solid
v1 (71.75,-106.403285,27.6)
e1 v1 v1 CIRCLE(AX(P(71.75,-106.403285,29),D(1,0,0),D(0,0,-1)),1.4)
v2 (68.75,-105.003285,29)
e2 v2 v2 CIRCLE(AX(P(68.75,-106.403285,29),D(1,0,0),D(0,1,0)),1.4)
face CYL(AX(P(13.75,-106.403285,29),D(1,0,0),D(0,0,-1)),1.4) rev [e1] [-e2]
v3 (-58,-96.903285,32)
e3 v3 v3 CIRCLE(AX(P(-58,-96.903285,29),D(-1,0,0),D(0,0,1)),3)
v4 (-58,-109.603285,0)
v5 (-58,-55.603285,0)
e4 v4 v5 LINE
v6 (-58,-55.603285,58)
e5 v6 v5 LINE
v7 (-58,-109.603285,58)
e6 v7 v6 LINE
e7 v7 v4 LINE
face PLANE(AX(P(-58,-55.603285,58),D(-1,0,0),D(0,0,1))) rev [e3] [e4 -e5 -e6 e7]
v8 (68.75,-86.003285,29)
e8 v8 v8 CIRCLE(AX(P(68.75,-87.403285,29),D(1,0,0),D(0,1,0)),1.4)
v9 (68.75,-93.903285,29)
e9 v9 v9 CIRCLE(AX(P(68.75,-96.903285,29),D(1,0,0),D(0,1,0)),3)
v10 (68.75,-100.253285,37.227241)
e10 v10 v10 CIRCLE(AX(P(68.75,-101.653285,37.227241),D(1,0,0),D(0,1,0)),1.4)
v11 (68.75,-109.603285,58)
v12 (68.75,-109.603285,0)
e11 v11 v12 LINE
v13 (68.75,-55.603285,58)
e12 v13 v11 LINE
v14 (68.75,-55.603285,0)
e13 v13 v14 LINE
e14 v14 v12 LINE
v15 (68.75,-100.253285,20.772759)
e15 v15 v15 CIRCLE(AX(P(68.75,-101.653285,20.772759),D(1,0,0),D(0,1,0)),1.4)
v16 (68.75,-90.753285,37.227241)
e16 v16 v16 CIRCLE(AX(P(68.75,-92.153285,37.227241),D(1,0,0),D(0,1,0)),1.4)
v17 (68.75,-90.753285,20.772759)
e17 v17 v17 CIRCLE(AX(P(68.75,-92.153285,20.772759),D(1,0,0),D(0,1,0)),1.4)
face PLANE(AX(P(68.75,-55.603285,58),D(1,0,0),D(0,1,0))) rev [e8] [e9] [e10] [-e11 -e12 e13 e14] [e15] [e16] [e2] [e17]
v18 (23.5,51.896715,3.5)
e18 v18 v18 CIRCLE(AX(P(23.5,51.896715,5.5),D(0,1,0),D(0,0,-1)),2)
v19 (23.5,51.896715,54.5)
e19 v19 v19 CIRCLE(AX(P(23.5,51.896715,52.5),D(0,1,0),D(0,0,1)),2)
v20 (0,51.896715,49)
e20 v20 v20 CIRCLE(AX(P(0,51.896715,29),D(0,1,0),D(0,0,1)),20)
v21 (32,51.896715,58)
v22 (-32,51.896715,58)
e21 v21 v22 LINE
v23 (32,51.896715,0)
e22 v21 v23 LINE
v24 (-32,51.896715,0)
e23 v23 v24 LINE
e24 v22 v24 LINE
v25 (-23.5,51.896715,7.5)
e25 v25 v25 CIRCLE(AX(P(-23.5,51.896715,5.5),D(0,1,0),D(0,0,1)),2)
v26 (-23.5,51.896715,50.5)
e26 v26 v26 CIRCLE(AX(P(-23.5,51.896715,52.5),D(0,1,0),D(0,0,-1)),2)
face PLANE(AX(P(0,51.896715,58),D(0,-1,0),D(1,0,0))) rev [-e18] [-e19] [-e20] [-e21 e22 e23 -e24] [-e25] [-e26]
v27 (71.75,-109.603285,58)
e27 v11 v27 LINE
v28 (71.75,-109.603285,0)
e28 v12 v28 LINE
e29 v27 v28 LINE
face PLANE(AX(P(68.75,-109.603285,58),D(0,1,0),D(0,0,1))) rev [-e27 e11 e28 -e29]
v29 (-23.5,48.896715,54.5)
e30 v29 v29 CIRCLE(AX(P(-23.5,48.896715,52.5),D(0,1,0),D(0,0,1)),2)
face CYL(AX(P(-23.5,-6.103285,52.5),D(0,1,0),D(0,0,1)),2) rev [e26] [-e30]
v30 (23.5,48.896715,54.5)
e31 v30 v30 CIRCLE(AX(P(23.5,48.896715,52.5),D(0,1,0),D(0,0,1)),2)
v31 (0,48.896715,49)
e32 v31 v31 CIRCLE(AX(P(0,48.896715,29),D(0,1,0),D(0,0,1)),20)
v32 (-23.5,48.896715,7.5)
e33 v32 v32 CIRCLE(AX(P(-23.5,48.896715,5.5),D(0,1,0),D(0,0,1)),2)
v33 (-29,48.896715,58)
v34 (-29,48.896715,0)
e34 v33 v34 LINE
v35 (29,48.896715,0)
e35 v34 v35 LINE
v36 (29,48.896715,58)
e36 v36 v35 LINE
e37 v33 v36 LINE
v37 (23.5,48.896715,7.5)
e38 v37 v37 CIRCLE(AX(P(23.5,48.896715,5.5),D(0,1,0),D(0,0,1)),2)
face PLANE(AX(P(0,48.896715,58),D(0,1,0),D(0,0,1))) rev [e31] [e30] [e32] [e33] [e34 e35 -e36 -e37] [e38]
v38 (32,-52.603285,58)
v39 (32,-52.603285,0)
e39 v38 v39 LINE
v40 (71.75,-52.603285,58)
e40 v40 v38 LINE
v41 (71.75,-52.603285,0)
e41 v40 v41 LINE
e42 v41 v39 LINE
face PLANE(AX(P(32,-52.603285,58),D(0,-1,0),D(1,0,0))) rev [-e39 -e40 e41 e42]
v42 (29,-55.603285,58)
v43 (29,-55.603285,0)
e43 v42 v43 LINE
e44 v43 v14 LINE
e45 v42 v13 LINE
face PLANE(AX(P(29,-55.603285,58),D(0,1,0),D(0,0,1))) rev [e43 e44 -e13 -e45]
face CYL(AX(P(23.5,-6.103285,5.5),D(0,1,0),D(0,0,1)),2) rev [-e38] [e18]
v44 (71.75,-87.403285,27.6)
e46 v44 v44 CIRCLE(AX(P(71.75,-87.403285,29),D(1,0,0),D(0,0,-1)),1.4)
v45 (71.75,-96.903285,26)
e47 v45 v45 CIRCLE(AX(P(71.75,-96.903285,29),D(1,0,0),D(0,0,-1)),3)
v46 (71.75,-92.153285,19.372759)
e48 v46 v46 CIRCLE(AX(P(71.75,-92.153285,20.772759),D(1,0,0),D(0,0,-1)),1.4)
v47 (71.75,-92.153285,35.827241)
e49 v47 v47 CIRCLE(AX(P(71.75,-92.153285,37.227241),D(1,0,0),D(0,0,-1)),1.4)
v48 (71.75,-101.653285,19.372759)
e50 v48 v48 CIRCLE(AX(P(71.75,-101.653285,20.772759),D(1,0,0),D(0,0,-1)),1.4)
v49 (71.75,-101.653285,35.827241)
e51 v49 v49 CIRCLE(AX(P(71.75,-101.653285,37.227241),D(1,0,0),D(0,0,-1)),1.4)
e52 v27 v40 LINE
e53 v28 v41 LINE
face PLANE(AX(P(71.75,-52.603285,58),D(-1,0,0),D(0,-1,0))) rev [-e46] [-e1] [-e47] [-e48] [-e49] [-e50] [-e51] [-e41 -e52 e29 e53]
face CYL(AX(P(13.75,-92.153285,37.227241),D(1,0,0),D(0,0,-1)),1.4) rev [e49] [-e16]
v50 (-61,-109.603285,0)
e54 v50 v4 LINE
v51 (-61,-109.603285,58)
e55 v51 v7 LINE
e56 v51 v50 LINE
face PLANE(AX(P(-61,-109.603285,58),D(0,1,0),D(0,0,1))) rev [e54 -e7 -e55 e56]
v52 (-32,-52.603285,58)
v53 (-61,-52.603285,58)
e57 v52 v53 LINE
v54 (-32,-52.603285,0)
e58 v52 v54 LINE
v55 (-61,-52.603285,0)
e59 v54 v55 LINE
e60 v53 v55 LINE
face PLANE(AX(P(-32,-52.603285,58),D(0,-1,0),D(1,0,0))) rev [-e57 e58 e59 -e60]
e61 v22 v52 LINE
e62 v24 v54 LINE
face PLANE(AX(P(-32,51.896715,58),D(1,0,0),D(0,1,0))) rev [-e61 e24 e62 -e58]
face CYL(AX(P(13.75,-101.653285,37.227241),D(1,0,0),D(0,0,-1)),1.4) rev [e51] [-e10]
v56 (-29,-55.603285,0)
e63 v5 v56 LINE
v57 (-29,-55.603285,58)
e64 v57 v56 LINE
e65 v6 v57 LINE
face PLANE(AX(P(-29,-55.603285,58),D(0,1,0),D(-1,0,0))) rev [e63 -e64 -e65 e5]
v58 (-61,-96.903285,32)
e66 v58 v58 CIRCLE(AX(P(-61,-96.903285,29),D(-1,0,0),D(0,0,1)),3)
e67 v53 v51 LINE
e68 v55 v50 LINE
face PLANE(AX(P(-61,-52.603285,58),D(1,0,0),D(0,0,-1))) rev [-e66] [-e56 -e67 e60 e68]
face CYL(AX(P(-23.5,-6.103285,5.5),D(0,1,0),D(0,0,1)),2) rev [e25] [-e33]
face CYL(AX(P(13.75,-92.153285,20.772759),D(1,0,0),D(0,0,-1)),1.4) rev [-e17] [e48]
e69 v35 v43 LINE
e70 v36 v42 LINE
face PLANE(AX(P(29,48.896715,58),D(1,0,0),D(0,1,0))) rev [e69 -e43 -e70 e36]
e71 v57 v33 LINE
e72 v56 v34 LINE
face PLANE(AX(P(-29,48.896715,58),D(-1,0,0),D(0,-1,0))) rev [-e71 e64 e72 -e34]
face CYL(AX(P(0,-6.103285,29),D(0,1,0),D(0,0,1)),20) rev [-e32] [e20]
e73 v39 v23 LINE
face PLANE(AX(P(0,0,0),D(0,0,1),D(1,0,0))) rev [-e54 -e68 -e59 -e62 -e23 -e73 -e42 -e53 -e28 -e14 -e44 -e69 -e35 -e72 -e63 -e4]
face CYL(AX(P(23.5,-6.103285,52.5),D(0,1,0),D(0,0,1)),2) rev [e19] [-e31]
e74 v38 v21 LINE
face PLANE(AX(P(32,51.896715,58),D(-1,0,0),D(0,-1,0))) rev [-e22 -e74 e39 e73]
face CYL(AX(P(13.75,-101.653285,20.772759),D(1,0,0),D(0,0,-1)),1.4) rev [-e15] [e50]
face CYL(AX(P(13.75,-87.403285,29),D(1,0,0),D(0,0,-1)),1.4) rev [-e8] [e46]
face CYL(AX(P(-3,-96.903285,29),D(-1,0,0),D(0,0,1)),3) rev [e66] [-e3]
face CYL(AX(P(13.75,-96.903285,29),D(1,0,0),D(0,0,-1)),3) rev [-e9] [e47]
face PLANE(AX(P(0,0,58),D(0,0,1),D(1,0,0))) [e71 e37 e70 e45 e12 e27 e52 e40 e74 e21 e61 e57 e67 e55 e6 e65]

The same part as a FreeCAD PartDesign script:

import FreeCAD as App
import Part
import Sketcher

V = App.Vector

doc = App.newDocument("Part")
body = doc.addObject("PartDesign::Body", "Body")

sketch1 = body.newObject("Sketcher::SketchObject", "Sketch")
sketch1.AttachmentSupport = (doc.getObject("XY_Plane"), [""])
sketch1.MapMode = "FlatFace"
sketch1.addGeometry(Part.LineSegment(V(32, 51.9, 0), V(-32, 51.9, 0)), False)
sketch1.addGeometry(Part.LineSegment(V(-32, 51.9, 0), V(-32, -52.6, 0)), False)
sketch1.addGeometry(Part.LineSegment(V(-32, -52.6, 0), V(-61, -52.6, 0)), False)
sketch1.addGeometry(Part.LineSegment(V(-61, -52.6, 0), V(-61, -109.6, 0)), False)
sketch1.addGeometry(Part.LineSegment(V(-61, -109.6, 0), V(-58, -109.6, 0)), False)
sketch1.addGeometry(Part.LineSegment(V(-58, -109.6, 0), V(-58, -55.6, 0)), False)
sketch1.addGeometry(Part.LineSegment(V(-58, -55.6, 0), V(-29, -55.6, 0)), False)
sketch1.addGeometry(Part.LineSegment(V(-29, -55.6, 0), V(-29, 48.9, 0)), False)
sketch1.addGeometry(Part.LineSegment(V(-29, 48.9, 0), V(29, 48.9, 0)), False)
sketch1.addGeometry(Part.LineSegment(V(29, 48.9, 0), V(29, -55.6, 0)), False)
sketch1.addGeometry(Part.LineSegment(V(29, -55.6, 0), V(68.8, -55.6, 0)), False)
sketch1.addGeometry(Part.LineSegment(V(68.8, -55.6, 0), V(68.8, -109.6, 0)), False)
sketch1.addGeometry(Part.LineSegment(V(68.8, -109.6, 0), V(71.8, -109.6, 0)), False)
sketch1.addGeometry(Part.LineSegment(V(71.8, -109.6, 0), V(71.8, -52.6, 0)), False)
sketch1.addGeometry(Part.LineSegment(V(71.8, -52.6, 0), V(32, -52.6, 0)), False)
sketch1.addGeometry(Part.LineSegment(V(32, -52.6, 0), V(32, 51.9, 0)), False)
sketch1.addConstraint(Sketcher.Constraint("Coincident", 0, 2, 1, 1))
sketch1.addConstraint(Sketcher.Constraint("Coincident", 1, 2, 2, 1))
sketch1.addConstraint(Sketcher.Constraint("Coincident", 2, 2, 3, 1))
sketch1.addConstraint(Sketcher.Constraint("Coincident", 3, 2, 4, 1))
sketch1.addConstraint(Sketcher.Constraint("Coincident", 4, 2, 5, 1))
sketch1.addConstraint(Sketcher.Constraint("Coincident", 5, 2, 6, 1))
sketch1.addConstraint(Sketcher.Constraint("Coincident", 6, 2, 7, 1))
sketch1.addConstraint(Sketcher.Constraint("Coincident", 7, 2, 8, 1))
sketch1.addConstraint(Sketcher.Constraint("Coincident", 8, 2, 9, 1))
sketch1.addConstraint(Sketcher.Constraint("Coincident", 9, 2, 10, 1))
sketch1.addConstraint(Sketcher.Constraint("Coincident", 10, 2, 11, 1))
sketch1.addConstraint(Sketcher.Constraint("Coincident", 11, 2, 12, 1))
sketch1.addConstraint(Sketcher.Constraint("Coincident", 12, 2, 13, 1))
sketch1.addConstraint(Sketcher.Constraint("Coincident", 13, 2, 14, 1))
sketch1.addConstraint(Sketcher.Constraint("Coincident", 14, 2, 15, 1))
sketch1.addConstraint(Sketcher.Constraint("Coincident", 15, 2, 0, 1))
sketch1.addConstraint(Sketcher.Constraint("Horizontal", 0))
sketch1.addConstraint(Sketcher.Constraint("Vertical", 1))
sketch1.addConstraint(Sketcher.Constraint("Horizontal", 2))
sketch1.addConstraint(Sketcher.Constraint("Vertical", 3))
sketch1.addConstraint(Sketcher.Constraint("Horizontal", 4))
sketch1.addConstraint(Sketcher.Constraint("Vertical", 5))
sketch1.addConstraint(Sketcher.Constraint("Horizontal", 6))
sketch1.addConstraint(Sketcher.Constraint("Vertical", 7))
sketch1.addConstraint(Sketcher.Constraint("Horizontal", 8))
sketch1.addConstraint(Sketcher.Constraint("Vertical", 9))
sketch1.addConstraint(Sketcher.Constraint("Horizontal", 10))
sketch1.addConstraint(Sketcher.Constraint("Vertical", 11))
sketch1.addConstraint(Sketcher.Constraint("Horizontal", 12))
sketch1.addConstraint(Sketcher.Constraint("Vertical", 13))
sketch1.addConstraint(Sketcher.Constraint("Horizontal", 14))
sketch1.addConstraint(Sketcher.Constraint("Vertical", 15))
sketch1.addConstraint(Sketcher.Constraint("Symmetric", 6, 2, 9, 2, -2))
sketch1.addConstraint(Sketcher.Constraint("Symmetric", 1, 2, 14, 2, -2))
sketch1.addConstraint(Sketcher.Constraint("Horizontal", 4, 2, 11, 2))
sketch1.addConstraint(Sketcher.Constraint("Equal", 2, 6))
sketch1.addConstraint(Sketcher.Constraint("Equal", 4, 12))
sketch1.addConstraint(Sketcher.Constraint("Equal", 1, 7))
sketch1.addConstraint(Sketcher.Constraint("DistanceX", 0, 2, 0, 1, 64.0))
sketch1.addConstraint(Sketcher.Constraint("DistanceX", 2, 2, 2, 1, 29.0))
sketch1.addConstraint(Sketcher.Constraint("DistanceX", 4, 1, 4, 2, 3.0))
sketch1.addConstraint(Sketcher.Constraint("DistanceY", 3, 2, 3, 1, 57.0))
sketch1.addConstraint(Sketcher.Constraint("DistanceY", 5, 1, 5, 2, 54.0))
sketch1.addConstraint(Sketcher.Constraint("DistanceY", 1, 2, 1, 1, 104.5))
sketch1.addConstraint(Sketcher.Constraint("DistanceX", 10, 1, 10, 2, 39.75))
sketch1.addConstraint(Sketcher.Constraint("DistanceY", -1, 1, 0, 2, 51.896715))
pad1 = body.newObject("PartDesign::Pad", "Pad")
pad1.Profile = sketch1
pad1.Length = 58

sketch2 = body.newObject("Sketcher::SketchObject", "Sketch001")
sketch2.AttachmentSupport = (doc.getObject("XZ_Plane"), [""])
sketch2.MapMode = "FlatFace"
sketch2.AttachmentOffset = App.Placement(V(0, 0, -51.896715), App.Rotation())
sketch2.addGeometry(Part.Circle(V(-23.5, 5.5, 0), V(0, 0, 1), 2), False)
sketch2.addGeometry(Part.Circle(V(23.5, 5.5, 0), V(0, 0, 1), 2), False)
sketch2.addGeometry(Part.Circle(V(23.5, 52.5, 0), V(0, 0, 1), 2), False)
sketch2.addGeometry(Part.Circle(V(-23.5, 52.5, 0), V(0, 0, 1), 2), False)
sketch2.addGeometry(Part.Circle(V(0, 29, 0), V(0, 0, 1), 20), False)
sketch2.addConstraint(Sketcher.Constraint("Equal", 0, 1))
sketch2.addConstraint(Sketcher.Constraint("Equal", 1, 2))
sketch2.addConstraint(Sketcher.Constraint("Equal", 2, 3))
sketch2.addConstraint(Sketcher.Constraint("Symmetric", 0, 3, 1, 3, -2))
sketch2.addConstraint(Sketcher.Constraint("Symmetric", 2, 3, 3, 3, -2))
sketch2.addConstraint(Sketcher.Constraint("PointOnObject", 4, 3, -2))
sketch2.addConstraint(Sketcher.Constraint("Vertical", 1, 3, 2, 3))
sketch2.addConstraint(Sketcher.Constraint("Diameter", 0, 4.0))
sketch2.addConstraint(Sketcher.Constraint("Diameter", 4, 40.0))
sketch2.addConstraint(Sketcher.Constraint("DistanceY", -1, 1, 4, 3, 29.0))
sketch2.addConstraint(Sketcher.Constraint("DistanceX", 0, 3, 1, 3, 47.0))
sketch2.addConstraint(Sketcher.Constraint("DistanceY", 1, 3, 2, 3, 47.0))
sketch2.addConstraint(Sketcher.Constraint("DistanceY", -1, 1, 0, 3, 5.5))
pocket1 = body.newObject("PartDesign::Pocket", "Pocket")
pocket1.Profile = sketch2
pocket1.Length = 58
pocket1.Reversed = True

sketch3 = body.newObject("Sketcher::SketchObject", "Sketch002")
sketch3.AttachmentSupport = (doc.getObject("YZ_Plane"), [""])
sketch3.MapMode = "FlatFace"
sketch3.AttachmentOffset = App.Placement(V(0, 0, 71.75), App.Rotation())
sketch3.addGeometry(Part.Circle(V(-96.9, 29, 0), V(0, 0, 1), 3), False)
sketch3.addGeometry(Part.Circle(V(-87.4, 29, 0), V(0, 0, 1), 1.4), False)
sketch3.addGeometry(Part.Circle(V(-92.2, 20.8, 0), V(0, 0, 1), 1.4), False)
sketch3.addGeometry(Part.Circle(V(-101.7, 20.8, 0), V(0, 0, 1), 1.4), False)
sketch3.addGeometry(Part.Circle(V(-106.4, 29, 0), V(0, 0, 1), 1.4), False)
sketch3.addGeometry(Part.Circle(V(-101.7, 37.2, 0), V(0, 0, 1), 1.4), False)
sketch3.addGeometry(Part.Circle(V(-92.2, 37.2, 0), V(0, 0, 1), 1.4), False)
sketch3.addConstraint(Sketcher.Constraint("Equal", 1, 2))
sketch3.addConstraint(Sketcher.Constraint("Equal", 2, 3))
sketch3.addConstraint(Sketcher.Constraint("Equal", 3, 4))
sketch3.addConstraint(Sketcher.Constraint("Equal", 4, 5))
sketch3.addConstraint(Sketcher.Constraint("Equal", 5, 6))
sketch3.addConstraint(Sketcher.Constraint("Horizontal", 0, 3, 1, 3))
sketch3.addConstraint(Sketcher.Constraint("Horizontal", 2, 3, 3, 3))
sketch3.addConstraint(Sketcher.Constraint("Horizontal", 1, 3, 4, 3))
sketch3.addConstraint(Sketcher.Constraint("Horizontal", 5, 3, 6, 3))
sketch3.addConstraint(Sketcher.Constraint("Vertical", 3, 3, 5, 3))
sketch3.addConstraint(Sketcher.Constraint("Vertical", 2, 3, 6, 3))
sketch3.addConstraint(Sketcher.Constraint("Diameter", 0, 6.0))
sketch3.addConstraint(Sketcher.Constraint("Diameter", 1, 2.8))
sketch3.addConstraint(Sketcher.Constraint("DistanceY", -1, 1, 0, 3, 29.0))
sketch3.addConstraint(Sketcher.Constraint("DistanceX", 4, 3, 1, 3, 19.0))
sketch3.addConstraint(Sketcher.Constraint("DistanceX", 0, 3, 1, 3, 9.5))
sketch3.addConstraint(Sketcher.Constraint("DistanceX", 3, 3, 2, 3, 9.5))
sketch3.addConstraint(Sketcher.Constraint("DistanceX", 0, 3, 2, 3, 4.75))
sketch3.addConstraint(Sketcher.Constraint("DistanceY", -1, 1, 2, 3, 20.772759))
sketch3.addConstraint(Sketcher.Constraint("DistanceY", -1, 1, 5, 3, 37.227241))
sketch3.addConstraint(Sketcher.Constraint("DistanceX", 0, 3, -1, 1, 96.903285))
pocket2 = body.newObject("PartDesign::Pocket", "Pocket001")
pocket2.Profile = sketch3
pocket2.Length = 58

sketch4 = body.newObject("Sketcher::SketchObject", "Sketch003")
sketch4.AttachmentSupport = (doc.getObject("YZ_Plane"), [""])
sketch4.MapMode = "FlatFace"
sketch4.AttachmentOffset = App.Placement(V(0, 0, -61), App.Rotation())
sketch4.addGeometry(Part.Circle(V(-96.9, 29, 0), V(0, 0, 1), 3), False)
sketch4.addConstraint(Sketcher.Constraint("Diameter", 0, 6.0))
sketch4.addConstraint(Sketcher.Constraint("DistanceY", -1, 1, 0, 3, 29.0))
sketch4.addConstraint(Sketcher.Constraint("DistanceX", 0, 3, -1, 1, 96.903285))
pocket3 = body.newObject("PartDesign::Pocket", "Pocket002")
pocket3.Profile = sketch4
pocket3.Length = 58
pocket3.Reversed = True

doc.recompute()
